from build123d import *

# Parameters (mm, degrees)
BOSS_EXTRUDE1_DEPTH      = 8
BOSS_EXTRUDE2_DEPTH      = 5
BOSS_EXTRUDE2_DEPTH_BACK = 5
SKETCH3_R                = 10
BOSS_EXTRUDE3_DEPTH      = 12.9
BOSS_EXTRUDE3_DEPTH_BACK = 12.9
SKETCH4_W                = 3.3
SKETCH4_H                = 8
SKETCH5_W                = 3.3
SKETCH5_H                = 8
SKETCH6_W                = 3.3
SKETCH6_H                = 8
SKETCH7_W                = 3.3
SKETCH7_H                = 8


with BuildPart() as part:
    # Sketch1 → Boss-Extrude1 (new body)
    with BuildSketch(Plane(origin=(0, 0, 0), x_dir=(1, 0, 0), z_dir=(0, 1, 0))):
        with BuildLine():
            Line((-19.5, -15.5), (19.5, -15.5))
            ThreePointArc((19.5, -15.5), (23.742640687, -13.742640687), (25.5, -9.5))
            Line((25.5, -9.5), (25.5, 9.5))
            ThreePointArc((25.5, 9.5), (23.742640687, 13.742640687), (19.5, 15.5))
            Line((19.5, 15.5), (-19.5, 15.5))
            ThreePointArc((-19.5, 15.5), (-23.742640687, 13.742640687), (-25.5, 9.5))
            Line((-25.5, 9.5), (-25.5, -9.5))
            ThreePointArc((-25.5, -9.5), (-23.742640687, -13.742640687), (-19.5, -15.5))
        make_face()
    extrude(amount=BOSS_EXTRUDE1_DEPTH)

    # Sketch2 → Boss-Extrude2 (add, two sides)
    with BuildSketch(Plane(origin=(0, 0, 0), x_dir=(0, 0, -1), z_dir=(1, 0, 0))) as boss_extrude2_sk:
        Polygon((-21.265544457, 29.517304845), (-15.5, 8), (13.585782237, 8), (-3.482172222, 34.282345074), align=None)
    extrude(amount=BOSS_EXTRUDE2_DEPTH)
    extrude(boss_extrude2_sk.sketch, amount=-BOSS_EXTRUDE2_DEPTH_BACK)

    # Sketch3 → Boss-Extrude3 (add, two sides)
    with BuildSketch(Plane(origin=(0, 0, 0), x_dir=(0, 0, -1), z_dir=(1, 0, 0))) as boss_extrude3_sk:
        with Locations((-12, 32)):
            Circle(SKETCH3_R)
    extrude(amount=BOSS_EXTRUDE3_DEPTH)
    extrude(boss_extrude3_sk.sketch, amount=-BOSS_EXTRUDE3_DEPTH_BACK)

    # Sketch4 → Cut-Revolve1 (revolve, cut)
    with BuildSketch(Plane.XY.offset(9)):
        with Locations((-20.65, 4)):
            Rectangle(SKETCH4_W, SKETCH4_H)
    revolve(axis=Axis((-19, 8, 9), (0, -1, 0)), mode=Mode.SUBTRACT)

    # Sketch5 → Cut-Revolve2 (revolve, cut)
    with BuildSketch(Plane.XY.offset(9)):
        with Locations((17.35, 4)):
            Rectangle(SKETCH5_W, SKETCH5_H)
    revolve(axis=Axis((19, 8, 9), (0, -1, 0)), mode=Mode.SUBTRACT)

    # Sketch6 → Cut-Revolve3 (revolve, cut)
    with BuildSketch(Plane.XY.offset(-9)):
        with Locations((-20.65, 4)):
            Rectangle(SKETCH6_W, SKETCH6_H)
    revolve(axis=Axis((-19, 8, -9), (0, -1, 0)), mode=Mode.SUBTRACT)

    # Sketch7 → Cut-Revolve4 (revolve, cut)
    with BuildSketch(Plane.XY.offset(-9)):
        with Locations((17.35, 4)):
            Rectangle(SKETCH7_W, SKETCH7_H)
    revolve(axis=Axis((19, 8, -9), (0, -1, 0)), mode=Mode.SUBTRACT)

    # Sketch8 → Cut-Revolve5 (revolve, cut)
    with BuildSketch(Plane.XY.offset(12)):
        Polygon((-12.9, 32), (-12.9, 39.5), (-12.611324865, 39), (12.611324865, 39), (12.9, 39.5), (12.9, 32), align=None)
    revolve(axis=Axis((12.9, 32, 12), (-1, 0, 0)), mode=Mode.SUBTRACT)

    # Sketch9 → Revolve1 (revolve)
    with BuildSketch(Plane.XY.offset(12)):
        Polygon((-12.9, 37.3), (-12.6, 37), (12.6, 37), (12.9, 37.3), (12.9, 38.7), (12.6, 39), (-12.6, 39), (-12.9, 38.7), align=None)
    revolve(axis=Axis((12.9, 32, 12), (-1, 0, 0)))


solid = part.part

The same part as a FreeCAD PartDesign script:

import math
import FreeCAD as App
import Part
import Sketcher

V = App.Vector
Q = App.Units.Quantity


def add_polygon(sketch, points):
    """Adds a closed chain of lines whose ends are joined by coincident constraints."""
    first, n = sketch.GeometryCount, len(points)
    for a, b in zip(points, points[1:] + points[:1]):
        sketch.addGeometry(Part.LineSegment(App.Vector(*a, 0), App.Vector(*b, 0)), False)
    for i in range(n):
        sketch.addConstraint(Sketcher.Constraint("Coincident", first + i, 2, first + (i + 1) % n, 1))

doc = App.newDocument("Part")
body = doc.addObject("PartDesign::Body", "Body")

# Sketch on XZ plane
sketch1 = body.newObject("Sketcher::SketchObject", "Sketch")
sketch1.AttachmentSupport = (doc.getObject("XZ_Plane"), [""])
sketch1.MapMode = "FlatFace"
sketch1.addGeometry([
    Part.LineSegment(V(-20, 16, 0), V(20, 16, 0)),  # 0
    Part.ArcOfCircle(Part.Circle(V(20, 10, 0), V(0, 0, 1), 6), math.radians(0), math.radians(90)),  # 1
    Part.LineSegment(V(26, 10, 0), V(26, -10, 0)),  # 2
    Part.ArcOfCircle(Part.Circle(V(20, -10, 0), V(0, 0, 1), 6), math.radians(-90), math.radians(0)),  # 3
    Part.LineSegment(V(20, -16, 0), V(-20, -16, 0)),  # 4
    Part.ArcOfCircle(Part.Circle(V(-20, -10, 0), V(0, 0, 1), 6), math.radians(180), math.radians(270)),  # 5
    Part.LineSegment(V(-26, -10, 0), V(-26, 10, 0)),  # 6
    Part.ArcOfCircle(Part.Circle(V(-20, 10, 0), V(0, 0, 1), 6), math.radians(90), math.radians(180)),  # 7
], False)
sketch1.addConstraint([
    Sketcher.Constraint("Tangent", 0, 2, 1, 2),
    Sketcher.Constraint("Tangent", 1, 1, 2, 1),
    Sketcher.Constraint("Tangent", 2, 2, 3, 2),
    Sketcher.Constraint("Tangent", 3, 1, 4, 1),
    Sketcher.Constraint("Tangent", 4, 2, 5, 2),
    Sketcher.Constraint("Tangent", 5, 1, 6, 1),
    Sketcher.Constraint("Tangent", 6, 2, 7, 2),
    Sketcher.Constraint("Tangent", 7, 1, 0, 1),
    Sketcher.Constraint("Horizontal", 0),
    Sketcher.Constraint("Vertical", 2),
    Sketcher.Constraint("Horizontal", 4),
    Sketcher.Constraint("Vertical", 6),
    Sketcher.Constraint("Equal", 1, 3),
    Sketcher.Constraint("Equal", 3, 5),
    Sketcher.Constraint("Equal", 5, 7),
    Sketcher.Constraint("Symmetric", 1, 3, 5, 3, -1, 1),
    Sketcher.Constraint("Radius", 1, 6.0),
    Sketcher.Constraint("DistanceX", 0, 1, 0, 2, 39.0),
    Sketcher.Constraint("DistanceY", 2, 2, 2, 1, 19.0),
])
pad1 = body.newObject("PartDesign::Pad", "Pad")
pad1.Profile = sketch1
pad1.Length = 8
pad1.Reversed = True

# Sketch on YZ plane
sketch2 = body.newObject("Sketcher::SketchObject", "Sketch001")
sketch2.AttachmentSupport = (doc.getObject("YZ_Plane"), [""])
sketch2.MapMode = "FlatFace"
add_polygon(sketch2, [(30, 21), (8, 16), (8, -14), (34, 3)])  # lines 0-3
sketch2.addConstraint([
    Sketcher.Constraint("Vertical", 1),
    Sketcher.Constraint("Perpendicular", 0, 3),
    Sketcher.Constraint("Angle", 0, Q("-165 deg")),
    Sketcher.Constraint("Angle", 2, Q("33 deg")),
    Sketcher.Constraint("DistanceX", -1, 1, 0, 2, 8.0),
    Sketcher.Constraint("DistanceY", -1, 1, 0, 2, 15.5),
    Sketcher.Constraint("Distance", 3, 18.410702),
    Sketcher.Constraint("DistanceY", 1, 2, 1, 1, 29.085782),
])
pad2 = body.newObject("PartDesign::Pad", "Pad001")
pad2.Profile = sketch2
pad2.Type = "TwoLengths"
pad2.Length = 5
pad2.Length2 = 5

# Sketch on YZ plane
sketch3 = body.newObject("Sketcher::SketchObject", "Sketch002")
sketch3.AttachmentSupport = (doc.getObject("YZ_Plane"), [""])
sketch3.MapMode = "FlatFace"
sketch3.addGeometry(Part.Circle(V(32, 12, 0), V(0, 0, 1), 10), False)
sketch3.addConstraint([
    Sketcher.Constraint("Diameter", 0, 20.0),
    Sketcher.Constraint("DistanceX", -1, 1, 0, 3, 32.0),
    Sketcher.Constraint("DistanceY", -1, 1, 0, 3, 12.0),
])
pad3 = body.newObject("PartDesign::Pad", "Pad002")
pad3.Profile = sketch3
pad3.Type = "TwoLengths"
pad3.Length = 12.9
pad3.Length2 = 12.9

# Sketch on XY plane
sketch4 = body.newObject("Sketcher::SketchObject", "Sketch003")
sketch4.AttachmentSupport = (doc.getObject("XY_Plane"), [""])
sketch4.MapMode = "FlatFace"
sketch4.AttachmentOffset = App.Placement(V(0, 0, 9), App.Rotation())
add_polygon(sketch4, [(-22.3, 8), (-22.3, 0), (-19, 0), (-19, 8)])  # lines 0-3
sketch4.addGeometry(Part.LineSegment(V(-19, 8, 0), V(-19, 0, 0)), True)  # axis
sketch4.addConstraint([
    Sketcher.Constraint("Vertical", 0),
    Sketcher.Constraint("Horizontal", 1),
    Sketcher.Constraint("Vertical", 2),
    Sketcher.Constraint("Horizontal", 3),
    Sketcher.Constraint("Vertical", 4),
    Sketcher.Constraint("Coincident", 4, 1, 2, 2),
    Sketcher.Constraint("PointOnObject", 0, 2, -1),
    Sketcher.Constraint("PointOnObject", 4, 2, -1),
    Sketcher.Constraint("DistanceY", 0, 2, 0, 1, 8.0),
    Sketcher.Constraint("DistanceX", 1, 1, 1, 2, 3.3),
    Sketcher.Constraint("DistanceX", 1, 2, -1, 1, 19.0),
])
groove = body.newObject("PartDesign::Groove", "Groove")
groove.Profile = sketch4
groove.ReferenceAxis = (sketch4, ["Axis0"])
groove.Angle = 360

# Sketch on XY plane
sketch5 = body.newObject("Sketcher::SketchObject", "Sketch004")
sketch5.AttachmentSupport = (doc.getObject("XY_Plane"), [""])
sketch5.MapMode = "FlatFace"
sketch5.AttachmentOffset = App.Placement(V(0, 0, 9), App.Rotation())
add_polygon(sketch5, [(15.7, 8), (15.7, 0), (19, 0), (19, 8)])  # lines 0-3
sketch5.addGeometry(Part.LineSegment(V(19, 8, 0), V(19, 0, 0)), True)  # axis
sketch5.addConstraint([
    Sketcher.Constraint("Vertical", 0),
    Sketcher.Constraint("Horizontal", 1),
    Sketcher.Constraint("Vertical", 2),
    Sketcher.Constraint("Horizontal", 3),
    Sketcher.Constraint("Vertical", 4),
    Sketcher.Constraint("Coincident", 4, 1, 2, 2),
    Sketcher.Constraint("PointOnObject", 0, 2, -1),
    Sketcher.Constraint("PointOnObject", 4, 2, -1),
    Sketcher.Constraint("DistanceY", 0, 2, 0, 1, 8.0),
    Sketcher.Constraint("DistanceX", 1, 1, 1, 2, 3.3),
    Sketcher.Constraint("DistanceX", -1, 1, 1, 2, 19.0),
])
groove2 = body.newObject("PartDesign::Groove", "Groove001")
groove2.Profile = sketch5
groove2.ReferenceAxis = (sketch5, ["Axis0"])
groove2.Angle = 360

# Sketch on XY plane
sketch6 = body.newObject("Sketcher::SketchObject", "Sketch005")
sketch6.AttachmentSupport = (doc.getObject("XY_Plane"), [""])
sketch6.MapMode = "FlatFace"
sketch6.AttachmentOffset = App.Placement(V(0, 0, -9), App.Rotation())
add_polygon(sketch6, [(-22.3, 8), (-22.3, 0), (-19, 0), (-19, 8)])  # lines 0-3
sketch6.addGeometry(Part.LineSegment(V(-19, 8, 0), V(-19, 0, 0)), True)  # axis
sketch6.addConstraint([
    Sketcher.Constraint("Vertical", 0),
    Sketcher.Constraint("Horizontal", 1),
    Sketcher.Constraint("Vertical", 2),
    Sketcher.Constraint("Horizontal", 3),
    Sketcher.Constraint("Vertical", 4),
    Sketcher.Constraint("Coincident", 4, 1, 2, 2),
    Sketcher.Constraint("PointOnObject", 0, 2, -1),
    Sketcher.Constraint("PointOnObject", 4, 2, -1),
    Sketcher.Constraint("DistanceY", 0, 2, 0, 1, 8.0),
    Sketcher.Constraint("DistanceX", 1, 1, 1, 2, 3.3),
    Sketcher.Constraint("DistanceX", 1, 2, -1, 1, 19.0),
])
groove3 = body.newObject("PartDesign::Groove", "Groove002")
groove3.Profile = sketch6
groove3.ReferenceAxis = (sketch6, ["Axis0"])
groove3.Angle = 360

# Sketch on XY plane
sketch7 = body.newObject("Sketcher::SketchObject", "Sketch006")
sketch7.AttachmentSupport = (doc.getObject("XY_Plane"), [""])
sketch7.MapMode = "FlatFace"
sketch7.AttachmentOffset = App.Placement(V(0, 0, -9), App.Rotation())
add_polygon(sketch7, [(15.7, 8), (15.7, 0), (19, 0), (19, 8)])  # lines 0-3
sketch7.addGeometry(Part.LineSegment(V(19, 8, 0), V(19, 0, 0)), True)  # axis
sketch7.addConstraint([
    Sketcher.Constraint("Vertical", 0),
    Sketcher.Constraint("Horizontal", 1),
    Sketcher.Constraint("Vertical", 2),
    Sketcher.Constraint("Horizontal", 3),
    Sketcher.Constraint("Vertical", 4),
    Sketcher.Constraint("Coincident", 4, 1, 2, 2),
    Sketcher.Constraint("PointOnObject", 0, 2, -1),
    Sketcher.Constraint("PointOnObject", 4, 2, -1),
    Sketcher.Constraint("DistanceY", 0, 2, 0, 1, 8.0),
    Sketcher.Constraint("DistanceX", 1, 1, 1, 2, 3.3),
    Sketcher.Constraint("DistanceX", -1, 1, 1, 2, 19.0),
])
groove4 = body.newObject("PartDesign::Groove", "Groove003")
groove4.Profile = sketch7
groove4.ReferenceAxis = (sketch7, ["Axis0"])
groove4.Angle = 360

# Sketch on XY plane
sketch8 = body.newObject("Sketcher::SketchObject", "Sketch007")
sketch8.AttachmentSupport = (doc.getObject("XY_Plane"), [""])
sketch8.MapMode = "FlatFace"
sketch8.AttachmentOffset = App.Placement(V(0, 0, 12), App.Rotation())
add_polygon(sketch8, [(-12.9, 39.5), (-12.9, 32), (12.9, 32), (12.9, 39.5), (12.6, 39), (-12.6, 39)])  # lines 0-5
sketch8.addGeometry(Part.LineSegment(V(12.9, 32, 0), V(-12.9, 32, 0)), True)  # axis
sketch8.addConstraint([
    Sketcher.Constraint("Vertical", 0),
    Sketcher.Constraint("Horizontal", 1),
    Sketcher.Constraint("Vertical", 2),
    Sketcher.Constraint("Horizontal", 4),
    Sketcher.Constraint("Horizontal", 6),
    Sketcher.Constraint("Coincident", 6, 1, 1, 2),
    Sketcher.Constraint("Symmetric", 2, 2, 5, 2, -2),
    Sketcher.Constraint("Vertical", 5, 2, 6, 2),
    Sketcher.Constraint("Equal", 3, 5),
    Sketcher.Constraint("Angle", 3, Q("-120 deg")),
    Sketcher.Constraint("DistanceX", 1, 1, 1, 2, 25.8),
    Sketcher.Constraint("DistanceY", 0, 2, 0, 1, 7.5),
    Sketcher.Constraint("DistanceY", -1, 1, 0, 2, 32.0),
    Sketcher.Constraint("DistanceY", -1, 1, 3, 2, 39.0),
])
groove5 = body.newObject("PartDesign::Groove", "Groove004")
groove5.Profile = sketch8
groove5.ReferenceAxis = (sketch8, ["Axis0"])
groove5.Angle = 360

# Sketch on XY plane
sketch9 = body.newObject("Sketcher::SketchObject", "Sketch008")
sketch9.AttachmentSupport = (doc.getObject("XY_Plane"), [""])
sketch9.MapMode = "FlatFace"
sketch9.AttachmentOffset = App.Placement(V(0, 0, 12), App.Rotation())
add_polygon(sketch9, [(-12.9, 37.3), (-12.6, 37), (12.6, 37), (12.9, 37.3), (12.9, 38.7), (12.6, 39), (-12.6, 39), (-12.9, 38.7)])  # lines 0-7
sketch9.addGeometry(Part.LineSegment(V(12.9, 32, 0), V(-12.9, 32, 0)), True)  # axis
sketch9.addConstraint([
    Sketcher.Constraint("Horizontal", 1),
    Sketcher.Constraint("Vertical", 3),
    Sketcher.Constraint("Horizontal", 5),
    Sketcher.Constraint("Vertical", 7),
    Sketcher.Constraint("Horizontal", 8),
    Sketcher.Constraint("Symmetric", 3, 2, 6, 2, -2),
    Sketcher.Constraint("Perpendicular", 0, 2),
    Sketcher.Constraint("Perpendicular", 2, 4),
    Sketcher.Constraint("Perpendicular", 4, 6),
    Sketcher.Constraint("Horizontal", 2, 2, 7, 2),
    Sketcher.Constraint("Vertical", 1, 2, 4, 2),
    Sketcher.Constraint("Vertical", 0, 2, 5, 2),
    Sketcher.Constraint("Vertical", 3, 2, 8, 1),
    Sketcher.Constraint("Vertical", 7, 2, 8, 2),
    Sketcher.Constraint("DistanceX", 1, 1, 1, 2, 25.2),
    Sketcher.Constraint("DistanceX", 8, 2, 8, 1, 25.8),
    Sketcher.Constraint("DistanceY", 3, 1, 3, 2, 1.4),
    Sketcher.Constraint("DistanceY", -1, 1, 0, 2, 37.0),
    Sketcher.Constraint("DistanceY", -1, 1, 8, 1, 32.0),
])
revolution = body.newObject("PartDesign::Revolution", "Revolution")
revolution.Profile = sketch9
revolution.ReferenceAxis = (sketch9, ["Axis0"])
revolution.Angle = 360

doc.recompute()
